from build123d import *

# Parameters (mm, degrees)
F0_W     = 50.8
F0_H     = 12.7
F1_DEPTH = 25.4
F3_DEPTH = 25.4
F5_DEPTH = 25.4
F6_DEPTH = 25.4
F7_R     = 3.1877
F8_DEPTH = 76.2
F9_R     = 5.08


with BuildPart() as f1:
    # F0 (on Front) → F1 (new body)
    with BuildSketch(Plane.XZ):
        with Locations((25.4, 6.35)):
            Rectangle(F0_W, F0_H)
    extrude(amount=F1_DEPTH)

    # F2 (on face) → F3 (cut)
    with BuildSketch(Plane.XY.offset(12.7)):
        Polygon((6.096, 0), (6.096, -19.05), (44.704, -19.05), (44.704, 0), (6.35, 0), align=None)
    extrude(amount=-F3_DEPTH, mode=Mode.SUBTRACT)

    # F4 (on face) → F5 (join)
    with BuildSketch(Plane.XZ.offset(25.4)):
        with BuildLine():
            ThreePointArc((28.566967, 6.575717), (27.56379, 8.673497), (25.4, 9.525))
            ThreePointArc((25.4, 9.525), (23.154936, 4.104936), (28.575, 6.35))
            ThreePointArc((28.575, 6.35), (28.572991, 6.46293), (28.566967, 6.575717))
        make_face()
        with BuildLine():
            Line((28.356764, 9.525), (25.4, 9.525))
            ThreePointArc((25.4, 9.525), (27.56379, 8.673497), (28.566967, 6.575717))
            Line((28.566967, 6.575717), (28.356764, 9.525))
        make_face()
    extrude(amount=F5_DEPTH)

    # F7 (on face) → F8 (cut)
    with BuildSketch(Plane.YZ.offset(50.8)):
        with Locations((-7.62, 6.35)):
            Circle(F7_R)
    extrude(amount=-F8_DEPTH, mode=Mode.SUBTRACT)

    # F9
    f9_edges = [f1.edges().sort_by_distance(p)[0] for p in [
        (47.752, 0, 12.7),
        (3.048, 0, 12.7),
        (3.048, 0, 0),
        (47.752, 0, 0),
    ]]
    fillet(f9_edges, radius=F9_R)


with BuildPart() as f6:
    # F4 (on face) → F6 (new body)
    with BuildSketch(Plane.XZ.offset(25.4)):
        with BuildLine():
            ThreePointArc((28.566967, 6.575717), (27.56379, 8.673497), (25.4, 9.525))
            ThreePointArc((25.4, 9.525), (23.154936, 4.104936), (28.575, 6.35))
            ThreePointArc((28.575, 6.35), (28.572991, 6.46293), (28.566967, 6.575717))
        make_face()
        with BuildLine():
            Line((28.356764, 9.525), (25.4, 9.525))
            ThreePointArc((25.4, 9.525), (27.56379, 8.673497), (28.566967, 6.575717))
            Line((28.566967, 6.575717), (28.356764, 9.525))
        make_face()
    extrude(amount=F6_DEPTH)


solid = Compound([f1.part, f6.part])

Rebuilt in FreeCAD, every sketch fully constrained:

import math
import FreeCAD as App
import Part
import Sketcher
Q = App.Units.Quantity


def edges_at(feature, points):
    """Names of the edges that pass closest to the given points."""
    edges = feature.Shape.Edges
    near = lambda p: min(range(len(edges)), key=lambda i: edges[i].distToShape(Part.Vertex(*p))[0])
    return sorted({f"Edge{near(p) + 1}" for p in points})

doc = App.newDocument("Part")
body = doc.addObject("PartDesign::Body", "Body")

# Sketch on XZ plane
sketch1 = body.newObject("Sketcher::SketchObject", "Sketch")
sketch1.AttachmentSupport = (doc.getObject("XZ_Plane"), [""])
sketch1.MapMode = "FlatFace"
sketch1.addGeometry([
    Part.LineSegment(App.Vector(0, 13, 0), App.Vector(0, 0, 0)),
    Part.LineSegment(App.Vector(0, 0, 0), App.Vector(51, 0, 0)),
    Part.LineSegment(App.Vector(51, 0, 0), App.Vector(51, 13, 0)),
    Part.LineSegment(App.Vector(51, 13, 0), App.Vector(0, 13, 0)),
], False)
sketch1.addConstraint([
    Sketcher.Constraint("Coincident", 0, 2, 1, 1),
    Sketcher.Constraint("Coincident", 1, 2, 2, 1),
    Sketcher.Constraint("Coincident", 2, 2, 3, 1),
    Sketcher.Constraint("Coincident", 3, 2, 0, 1),
    Sketcher.Constraint("Vertical", 0),
    Sketcher.Constraint("Horizontal", 1),
    Sketcher.Constraint("Vertical", 2),
    Sketcher.Constraint("Horizontal", 3),
    Sketcher.Constraint("Coincident", 0, 2, -1, 1),
    Sketcher.Constraint("DistanceX", 1, 1, 1, 2, Q("2 in")),
    Sketcher.Constraint("DistanceY", 0, 2, 0, 1, Q("0.5 in")),
])
pad1 = body.newObject("PartDesign::Pad", "Pad")
pad1.Profile = sketch1
pad1.Length = Q("1 in")

# Sketch on XY plane
sketch2 = body.newObject("Sketcher::SketchObject", "Sketch001")
sketch2.AttachmentSupport = (doc.getObject("XY_Plane"), [""])
sketch2.MapMode = "FlatFace"
sketch2.AttachmentOffset = App.Placement(App.Vector(0, 0, 0.5 * 25.4), App.Rotation())
sketch2.addGeometry([
    Part.LineSegment(App.Vector(6, 0, 0), App.Vector(6, -19, 0)),
    Part.LineSegment(App.Vector(6, -19, 0), App.Vector(45, -19, 0)),
    Part.LineSegment(App.Vector(45, -19, 0), App.Vector(45, 0, 0)),
    Part.LineSegment(App.Vector(45, 0, 0), App.Vector(6, 0, 0)),
], False)
sketch2.addConstraint([
    Sketcher.Constraint("Coincident", 0, 2, 1, 1),
    Sketcher.Constraint("Coincident", 1, 2, 2, 1),
    Sketcher.Constraint("Coincident", 2, 2, 3, 1),
    Sketcher.Constraint("Coincident", 3, 2, 0, 1),
    Sketcher.Constraint("Vertical", 0),
    Sketcher.Constraint("Horizontal", 1),
    Sketcher.Constraint("Vertical", 2),
    Sketcher.Constraint("Horizontal", 3),
    Sketcher.Constraint("PointOnObject", 2, 2, -1),
    Sketcher.Constraint("DistanceX", 1, 1, 1, 2, Q("1.52 in")),
    Sketcher.Constraint("DistanceY", 0, 2, 0, 1, Q("0.75 in")),
    Sketcher.Constraint("DistanceX", -1, 1, 0, 2, Q("0.24 in")),
])
pocket1 = body.newObject("PartDesign::Pocket", "Pocket")
pocket1.Profile = sketch2
pocket1.Length = Q("1 in")

# Sketch on XZ plane
sketch3 = body.newObject("Sketcher::SketchObject", "Sketch002")
sketch3.AttachmentSupport = (doc.getObject("XZ_Plane"), [""])
sketch3.MapMode = "FlatFace"
sketch3.AttachmentOffset = App.Placement(App.Vector(0, 0, 1 * 25.4), App.Rotation())
sketch3.addGeometry([
    Part.ArcOfCircle(Part.Circle(App.Vector(25.4, 6.35, 0), App.Vector(0, 0, 1), 3.17), math.radians(90), math.radians(360)),
    Part.ArcOfCircle(Part.Circle(App.Vector(25.4, 6.35, 0), App.Vector(0, 0, 1), 3.18), math.radians(0), math.radians(4.08)),
    Part.LineSegment(App.Vector(28.57, 6.58, 0), App.Vector(28.36, 9.53, 0)),
    Part.LineSegment(App.Vector(28.36, 9.53, 0), App.Vector(25.4, 9.53, 0)),
], False)
sketch3.addConstraint([
    Sketcher.Constraint("Tangent", 0, 2, 1, 1),
    Sketcher.Constraint("Coincident", 1, 2, 2, 1),
    Sketcher.Constraint("Coincident", 2, 2, 3, 1),
    Sketcher.Constraint("Tangent", 3, 2, 0, 1),
    Sketcher.Constraint("Horizontal", 3),
    Sketcher.Constraint("DistanceX", -1, 1, 0, 3, Q("1 in")),
    Sketcher.Constraint("Radius", 0, Q("0.125 in")),
    Sketcher.Constraint("DistanceY", -1, 1, 0, 3, Q("0.25 in")),
    Sketcher.Constraint("DistanceY", -1, 1, 0, 2, Q("0.25 in")),
    Sketcher.Constraint("Radius", 1, 3.175374),
    Sketcher.Constraint("DistanceX", 3, 2, 3, 1, 2.956764),
    Sketcher.Constraint("DistanceX", 1, 3, 1, 2, 3.167341),
])
pad2 = body.newObject("PartDesign::Pad", "Pad001")
pad2.Profile = sketch3
pad2.Length = Q("1 in")

# Sketch on YZ plane
sketch4 = body.newObject("Sketcher::SketchObject", "Sketch003")
sketch4.AttachmentSupport = (doc.getObject("YZ_Plane"), [""])
sketch4.MapMode = "FlatFace"
sketch4.AttachmentOffset = App.Placement(App.Vector(0, 0, 2 * 25.4), App.Rotation())
sketch4.addGeometry(Part.Circle(App.Vector(-7.6, 6.3, 0), App.Vector(0, 0, 1), 3.2), False)
sketch4.addConstraint([
    Sketcher.Constraint("Diameter", 0, Q("0.251 in")),
    Sketcher.Constraint("DistanceX", 0, 3, -1, 1, Q("0.3 in")),
    Sketcher.Constraint("DistanceY", -1, 1, 0, 3, Q("0.25 in")),
])
pocket2 = body.newObject("PartDesign::Pocket", "Pocket001")
pocket2.Profile = sketch4
pocket2.Length = Q("3 in")
doc.recompute()

fillet = body.newObject("PartDesign::Fillet", "Fillet")
fillet.Base = (pocket2, edges_at(pocket2, [
    (47.752, 0, 12.7),
    (3.048, 0, 12.7),
    (3.048, 0, 0),
    (47.752, 0, 0),
]))
fillet.Radius = Q("0.2 in")
body2 = doc.addObject("PartDesign::Body", "Body001")

# Sketch on XZ plane
sketch5 = body2.newObject("Sketcher::SketchObject", "Sketch004")
sketch5.AttachmentSupport = (doc.getObject("XZ_Plane001"), [""])
sketch5.MapMode = "FlatFace"
sketch5.AttachmentOffset = App.Placement(App.Vector(0, 0, 1 * 25.4), App.Rotation())
sketch5.addGeometry([
    Part.ArcOfCircle(Part.Circle(App.Vector(25.4, 6.35, 0), App.Vector(0, 0, 1), 3.17), math.radians(90), math.radians(360)),
    Part.ArcOfCircle(Part.Circle(App.Vector(25.4, 6.35, 0), App.Vector(0, 0, 1), 3.18), math.radians(0), math.radians(4.08)),
    Part.LineSegment(App.Vector(28.57, 6.58, 0), App.Vector(28.36, 9.53, 0)),
    Part.LineSegment(App.Vector(28.36, 9.53, 0), App.Vector(25.4, 9.53, 0)),
], False)
sketch5.addConstraint([
    Sketcher.Constraint("Tangent", 0, 2, 1, 1),
    Sketcher.Constraint("Coincident", 1, 2, 2, 1),
    Sketcher.Constraint("Coincident", 2, 2, 3, 1),
    Sketcher.Constraint("Tangent", 3, 2, 0, 1),
    Sketcher.Constraint("Horizontal", 3),
    Sketcher.Constraint("DistanceX", -1, 1, 0, 3, Q("1 in")),
    Sketcher.Constraint("Radius", 0, Q("0.125 in")),
    Sketcher.Constraint("DistanceY", -1, 1, 0, 3, Q("0.25 in")),
    Sketcher.Constraint("DistanceY", -1, 1, 0, 2, Q("0.25 in")),
    Sketcher.Constraint("Radius", 1, 3.175374),
    Sketcher.Constraint("DistanceX", 3, 2, 3, 1, 2.956764),
    Sketcher.Constraint("DistanceX", 1, 3, 1, 2, 3.167341),
])
pad3 = body2.newObject("PartDesign::Pad", "Pad002")
pad3.Profile = sketch5
pad3.Length = Q("1 in")

doc.recompute()
